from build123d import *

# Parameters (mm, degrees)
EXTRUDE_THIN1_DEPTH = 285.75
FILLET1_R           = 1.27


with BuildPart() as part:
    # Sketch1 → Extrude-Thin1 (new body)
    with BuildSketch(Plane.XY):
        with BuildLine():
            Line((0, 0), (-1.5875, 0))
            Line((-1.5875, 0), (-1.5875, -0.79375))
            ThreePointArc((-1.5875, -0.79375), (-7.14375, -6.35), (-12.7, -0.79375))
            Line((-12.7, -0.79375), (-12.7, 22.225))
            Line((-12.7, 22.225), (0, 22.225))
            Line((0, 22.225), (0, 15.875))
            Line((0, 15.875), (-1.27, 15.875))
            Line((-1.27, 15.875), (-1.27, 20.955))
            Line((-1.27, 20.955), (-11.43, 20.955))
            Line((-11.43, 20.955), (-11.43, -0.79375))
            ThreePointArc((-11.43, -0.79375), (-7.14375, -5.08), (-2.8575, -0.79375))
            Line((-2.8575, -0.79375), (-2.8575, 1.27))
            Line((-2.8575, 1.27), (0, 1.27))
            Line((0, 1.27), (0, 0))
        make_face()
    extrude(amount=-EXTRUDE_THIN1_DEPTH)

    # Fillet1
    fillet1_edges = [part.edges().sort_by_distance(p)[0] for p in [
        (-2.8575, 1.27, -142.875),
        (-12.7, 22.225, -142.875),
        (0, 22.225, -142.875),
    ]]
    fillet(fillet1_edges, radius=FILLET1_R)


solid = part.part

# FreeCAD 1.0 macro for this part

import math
import FreeCAD as App
import Part
import Sketcher
Q = App.Units.Quantity


def edges_at(feature, points):
    """Names of the edges that pass closest to the given points."""
    edges = feature.Shape.Edges
    near = lambda p: min(range(len(edges)), key=lambda i: edges[i].distToShape(Part.Vertex(*p))[0])
    return sorted({f"Edge{near(p) + 1}" for p in points})

doc = App.newDocument("Part")
body = doc.addObject("PartDesign::Body", "Body")

sketch1 = doc.addObject("Sketcher::SketchObject", "Sketch")
body.addObject(sketch1)
sketch1.AttachmentSupport = (doc.XY_Plane, [""])
sketch1.MapMode = "FlatFace"
sketch1.addGeometry([
    Part.LineSegment(App.Vector(-1.5875, 0, 0), App.Vector(0, 0, 0)),
    Part.LineSegment(App.Vector(0, 0, 0), App.Vector(0, 1.27, 0)),
    Part.LineSegment(App.Vector(0, 1.27, 0), App.Vector(-2.8575, 1.27, 0)),
    Part.LineSegment(App.Vector(-2.8575, 1.27, 0), App.Vector(-2.8575, -0.79375, 0)),
    Part.ArcOfCircle(Part.Circle(App.Vector(-7.14375, -0.79375, 0), App.Vector(0, 0, 1), 4.28625), math.radians(180), math.radians(360)),
    Part.LineSegment(App.Vector(-11.43, -0.79375, 0), App.Vector(-11.43, 20.955, 0)),
    Part.LineSegment(App.Vector(-11.43, 20.955, 0), App.Vector(-1.27, 20.955, 0)),
    Part.LineSegment(App.Vector(-1.27, 20.955, 0), App.Vector(-1.27, 15.875, 0)),
    Part.LineSegment(App.Vector(-1.27, 15.875, 0), App.Vector(0, 15.875, 0)),
    Part.LineSegment(App.Vector(0, 15.875, 0), App.Vector(0, 22.225, 0)),
    Part.LineSegment(App.Vector(0, 22.225, 0), App.Vector(-12.7, 22.225, 0)),
    Part.LineSegment(App.Vector(-12.7, 22.225, 0), App.Vector(-12.7, -0.79375, 0)),
    Part.ArcOfCircle(Part.Circle(App.Vector(-7.14375, -0.79375, 0), App.Vector(0, 0, 1), 5.55625), math.radians(180), math.radians(360)),
    Part.LineSegment(App.Vector(-1.5875, -0.79375, 0), App.Vector(-1.5875, 0, 0)),
], False)
sketch1.addConstraint([
    Sketcher.Constraint("Coincident", 0, 2, 1, 1),
    Sketcher.Constraint("Coincident", 1, 2, 2, 1),
    Sketcher.Constraint("Coincident", 2, 2, 3, 1),
    Sketcher.Constraint("Tangent", 3, 2, 4, 2),
    Sketcher.Constraint("Tangent", 4, 1, 5, 1),
    Sketcher.Constraint("Coincident", 5, 2, 6, 1),
    Sketcher.Constraint("Coincident", 6, 2, 7, 1),
    Sketcher.Constraint("Coincident", 7, 2, 8, 1),
    Sketcher.Constraint("Coincident", 8, 2, 9, 1),
    Sketcher.Constraint("Coincident", 9, 2, 10, 1),
    Sketcher.Constraint("Coincident", 10, 2, 11, 1),
    Sketcher.Constraint("Tangent", 11, 2, 12, 1),
    Sketcher.Constraint("Tangent", 12, 2, 13, 1),
    Sketcher.Constraint("Coincident", 13, 2, 0, 1),
    Sketcher.Constraint("Horizontal", 0),
    Sketcher.Constraint("Vertical", 1),
    Sketcher.Constraint("Horizontal", 2),
    Sketcher.Constraint("Vertical", 3),
    Sketcher.Constraint("Vertical", 5),
    Sketcher.Constraint("Horizontal", 6),
    Sketcher.Constraint("Vertical", 7),
    Sketcher.Constraint("Horizontal", 8),
    Sketcher.Constraint("Vertical", 9),
    Sketcher.Constraint("Horizontal", 10),
    Sketcher.Constraint("Vertical", 11),
    Sketcher.Constraint("Vertical", 13),
    Sketcher.Constraint("Coincident", 0, 2, -1, 1),
    Sketcher.Constraint("Coincident", 12, 3, 4, 3),
    Sketcher.Constraint("PointOnObject", 8, 2, -2),
    Sketcher.Constraint("Equal", 8, 1),
    Sketcher.Constraint("DistanceX", 6, 1, 6, 2, Q("0.4 in")),
    Sketcher.Constraint("DistanceX", 10, 2, 10, 1, Q("0.5 in")),
    Sketcher.Constraint("DistanceY", 7, 2, 7, 1, Q("0.2 in")),
    Sketcher.Constraint("Radius", 12, Q("0.21875 in")),
    Sketcher.Constraint("DistanceX", 8, 1, 8, 2, Q("0.05 in")),
    Sketcher.Constraint("DistanceY", 9, 1, 9, 2, Q("0.25 in")),
    Sketcher.Constraint("DistanceY", 11, 2, 11, 1, Q("0.90625 in")),
    Sketcher.Constraint("DistanceY", 13, 1, 13, 2, Q("0.03125 in")),
])
pad1 = doc.addObject("PartDesign::Pad", "Pad")
body.addObject(pad1)
pad1.Profile = sketch1
pad1.Length = Q("11.25 in")
pad1.Reversed = True
doc.recompute()

fillet = doc.addObject("PartDesign::Fillet", "Fillet")
body.addObject(fillet)
fillet.Base = (pad1, edges_at(pad1, [(-2.857, 1.27, -142.875), (-12.7, 22.225, -142.875), (0, 22.225, -142.875)]))
fillet.Radius = Q("0.05 in")

doc.recompute()
